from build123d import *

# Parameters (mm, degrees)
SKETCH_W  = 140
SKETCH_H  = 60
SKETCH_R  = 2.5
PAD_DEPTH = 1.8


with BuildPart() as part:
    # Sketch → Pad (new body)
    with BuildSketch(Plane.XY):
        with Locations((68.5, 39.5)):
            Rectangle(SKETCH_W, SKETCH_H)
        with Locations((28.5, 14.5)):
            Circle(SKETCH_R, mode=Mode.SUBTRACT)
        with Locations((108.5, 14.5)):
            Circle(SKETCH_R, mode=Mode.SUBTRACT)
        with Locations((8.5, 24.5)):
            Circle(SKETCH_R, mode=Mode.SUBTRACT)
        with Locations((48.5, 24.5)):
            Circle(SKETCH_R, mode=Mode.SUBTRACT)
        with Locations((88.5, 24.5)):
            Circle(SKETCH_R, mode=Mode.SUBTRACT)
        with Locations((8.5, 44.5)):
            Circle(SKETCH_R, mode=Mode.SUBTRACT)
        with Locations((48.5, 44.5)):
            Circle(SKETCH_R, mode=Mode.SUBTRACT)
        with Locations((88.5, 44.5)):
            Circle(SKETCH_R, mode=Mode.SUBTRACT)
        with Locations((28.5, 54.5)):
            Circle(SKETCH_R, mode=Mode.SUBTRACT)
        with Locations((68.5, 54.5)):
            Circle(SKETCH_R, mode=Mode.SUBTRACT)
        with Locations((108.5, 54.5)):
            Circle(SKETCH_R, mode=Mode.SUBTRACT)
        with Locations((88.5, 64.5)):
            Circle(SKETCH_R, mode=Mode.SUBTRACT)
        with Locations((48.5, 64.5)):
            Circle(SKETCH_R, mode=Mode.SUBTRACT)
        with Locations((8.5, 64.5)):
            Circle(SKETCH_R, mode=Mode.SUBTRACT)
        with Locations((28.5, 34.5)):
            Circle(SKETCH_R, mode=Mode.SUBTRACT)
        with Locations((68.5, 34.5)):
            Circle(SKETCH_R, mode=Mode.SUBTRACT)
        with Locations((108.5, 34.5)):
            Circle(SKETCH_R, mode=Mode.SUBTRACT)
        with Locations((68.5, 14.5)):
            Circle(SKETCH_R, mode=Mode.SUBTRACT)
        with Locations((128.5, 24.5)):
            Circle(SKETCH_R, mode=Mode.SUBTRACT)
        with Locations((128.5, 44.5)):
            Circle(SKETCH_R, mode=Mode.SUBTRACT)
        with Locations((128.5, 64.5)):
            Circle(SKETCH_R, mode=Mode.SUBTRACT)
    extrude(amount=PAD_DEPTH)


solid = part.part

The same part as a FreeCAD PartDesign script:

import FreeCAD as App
import Part
import Sketcher

V = App.Vector
Q = App.Units.Quantity


def add_polygon(sketch, points):
    """Adds a closed chain of lines whose ends are joined by coincident constraints."""
    first, n = sketch.GeometryCount, len(points)
    for a, b in zip(points, points[1:] + points[:1]):
        sketch.addGeometry(Part.LineSegment(App.Vector(*a, 0), App.Vector(*b, 0)), False)
    for i in range(n):
        sketch.addConstraint(Sketcher.Constraint("Coincident", first + i, 2, first + (i + 1) % n, 1))

doc = App.newDocument("Part")
body = doc.addObject("PartDesign::Body", "Body")

# Sketch on XY plane
sketch1 = doc.addObject("Sketcher::SketchObject", "Sketch")
body.addObject(sketch1)
sketch1.AttachmentSupport = (doc.XY_Plane, [""])
sketch1.MapMode = "FlatFace"
add_polygon(sketch1, [(-1.5, 69.5), (-1.5, 9.5), (138.5, 9.5), (138.5, 69.5)])  # lines 0-3
sketch1.addGeometry(Part.Circle(V(28.5, 14.5, 0), V(0, 0, 1), 2.5), False)  # 4
sketch1.addGeometry(Part.Circle(V(8.5, 24.5, 0), V(0, 0, 1), 2.5), False)  # 5
sketch1.addGeometry(Part.Circle(V(48.5, 24.5, 0), V(0, 0, 1), 2.5), False)  # 6
sketch1.addGeometry(Part.Circle(V(28.5, 34.5, 0), V(0, 0, 1), 2.5), False)  # 7
sketch1.addGeometry(Part.Circle(V(68.5, 14.5, 0), V(0, 0, 1), 2.5), False)  # 8
sketch1.addGeometry(Part.Circle(V(88.5, 24.5, 0), V(0, 0, 1), 2.5), False)  # 9
sketch1.addGeometry(Part.Circle(V(108.5, 14.5, 0), V(0, 0, 1), 2.5), False)  # 10
sketch1.addGeometry(Part.Circle(V(128.5, 24.5, 0), V(0, 0, 1), 2.5), False)  # 11
sketch1.addGeometry(Part.Circle(V(68.5, 34.5, 0), V(0, 0, 1), 2.5), False)  # 12
sketch1.addGeometry(Part.Circle(V(108.5, 34.5, 0), V(0, 0, 1), 2.5), False)  # 13
sketch1.addGeometry(Part.Circle(V(8.5, 44.5, 0), V(0, 0, 1), 2.5), False)  # 14
sketch1.addGeometry(Part.Circle(V(48.5, 44.5, 0), V(0, 0, 1), 2.5), False)  # 15
sketch1.addGeometry(Part.Circle(V(28.5, 54.5, 0), V(0, 0, 1), 2.5), False)  # 16
sketch1.addGeometry(Part.Circle(V(8.5, 64.5, 0), V(0, 0, 1), 2.5), False)  # 17
sketch1.addGeometry(Part.Circle(V(48.5, 64.5, 0), V(0, 0, 1), 2.5), False)  # 18
sketch1.addGeometry(Part.Circle(V(88.5, 44.5, 0), V(0, 0, 1), 2.5), False)  # 19
sketch1.addGeometry(Part.Circle(V(128.5, 44.5, 0), V(0, 0, 1), 2.5), False)  # 20
sketch1.addGeometry(Part.Circle(V(68.5, 54.5, 0), V(0, 0, 1), 2.5), False)  # 21
sketch1.addGeometry(Part.Circle(V(88.5, 64.5, 0), V(0, 0, 1), 2.5), False)  # 22
sketch1.addGeometry(Part.Circle(V(108.5, 54.5, 0), V(0, 0, 1), 2.5), False)  # 23
sketch1.addGeometry(Part.Circle(V(128.5, 64.5, 0), V(0, 0, 1), 2.5), False)  # 24
sketch1.addConstraint([
    Sketcher.Constraint("Vertical", 0),
    Sketcher.Constraint("Horizontal", 1),
    Sketcher.Constraint("Vertical", 2),
    Sketcher.Constraint("Horizontal", 3),
    Sketcher.Constraint("Equal", 4, 5),
    Sketcher.Constraint("Equal", 5, 6),
    Sketcher.Constraint("Equal", 6, 7),
    Sketcher.Constraint("Equal", 7, 8),
    Sketcher.Constraint("Equal", 8, 9),
    Sketcher.Constraint("Equal", 9, 10),
    Sketcher.Constraint("Equal", 10, 11),
    Sketcher.Constraint("Equal", 11, 12),
    Sketcher.Constraint("Equal", 12, 13),
    Sketcher.Constraint("Equal", 13, 14),
    Sketcher.Constraint("Equal", 14, 15),
    Sketcher.Constraint("Equal", 15, 16),
    Sketcher.Constraint("Equal", 16, 17),
    Sketcher.Constraint("Equal", 17, 18),
    Sketcher.Constraint("Equal", 18, 19),
    Sketcher.Constraint("Equal", 19, 20),
    Sketcher.Constraint("Equal", 20, 21),
    Sketcher.Constraint("Equal", 21, 22),
    Sketcher.Constraint("Equal", 22, 23),
    Sketcher.Constraint("Equal", 23, 24),
    Sketcher.Constraint("Horizontal", 5, 3, 6, 3),
    Sketcher.Constraint("Horizontal", 4, 3, 8, 3),
    Sketcher.Constraint("Horizontal", 6, 3, 9, 3),
    Sketcher.Constraint("Horizontal", 8, 3, 10, 3),
    Sketcher.Constraint("Horizontal", 9, 3, 11, 3),
    Sketcher.Constraint("Horizontal", 7, 3, 12, 3),
    Sketcher.Constraint("Horizontal", 12, 3, 13, 3),
    Sketcher.Constraint("Horizontal", 14, 3, 15, 3),
    Sketcher.Constraint("Horizontal", 17, 3, 18, 3),
    Sketcher.Constraint("Horizontal", 15, 3, 19, 3),
    Sketcher.Constraint("Horizontal", 19, 3, 20, 3),
    Sketcher.Constraint("Horizontal", 16, 3, 21, 3),
    Sketcher.Constraint("Horizontal", 18, 3, 22, 3),
    Sketcher.Constraint("Horizontal", 21, 3, 23, 3),
    Sketcher.Constraint("Horizontal", 22, 3, 24, 3),
    Sketcher.Constraint("Vertical", 4, 3, 7, 3),
    Sketcher.Constraint("Vertical", 8, 3, 12, 3),
    Sketcher.Constraint("Vertical", 10, 3, 13, 3),
    Sketcher.Constraint("Vertical", 5, 3, 14, 3),
    Sketcher.Constraint("Vertical", 6, 3, 15, 3),
    Sketcher.Constraint("Vertical", 7, 3, 16, 3),
    Sketcher.Constraint("Vertical", 14, 3, 17, 3),
    Sketcher.Constraint("Vertical", 15, 3, 18, 3),
    Sketcher.Constraint("Vertical", 9, 3, 19, 3),
    Sketcher.Constraint("Vertical", 11, 3, 20, 3),
    Sketcher.Constraint("Vertical", 12, 3, 21, 3),
    Sketcher.Constraint("Vertical", 19, 3, 22, 3),
    Sketcher.Constraint("Vertical", 13, 3, 23, 3),
    Sketcher.Constraint("Vertical", 20, 3, 24, 3),
    Sketcher.Constraint("Diameter", 4, Q("5 mm")),
    Sketcher.Constraint("DistanceX", 1, 1, 1, 2, Q("140 mm")),
    Sketcher.Constraint("DistanceY", 0, 2, 0, 1, Q("60 mm")),
    Sketcher.Constraint("DistanceX", 5, 3, 4, 3, Q("20 mm")),
    Sketcher.Constraint("DistanceY", 4, 3, 5, 3, Q("10 mm")),
    Sketcher.Constraint("DistanceX", 4, 3, 6, 3, Q("20 mm")),
    Sketcher.Constraint("DistanceY", 4, 3, 7, 3, Q("20 mm")),
    Sketcher.Constraint("DistanceX", 6, 3, 8, 3, Q("20 mm")),
    Sketcher.Constraint("DistanceX", 8, 3, 9, 3, Q("20 mm")),
    Sketcher.Constraint("DistanceX", 9, 3, 10, 3, Q("20 mm")),
    Sketcher.Constraint("DistanceX", 10, 3, 11, 3, Q("20 mm")),
    Sketcher.Constraint("DistanceY", 5, 3, 14, 3, Q("20 mm")),
    Sketcher.Constraint("DistanceY", 7, 3, 16, 3, Q("20 mm")),
    Sketcher.Constraint("DistanceY", 14, 3, 17, 3, Q("20 mm")),
    Sketcher.Constraint("DistanceX", 0, 2, 5, 3, Q("10 mm")),
    Sketcher.Constraint("DistanceY", 0, 2, 5, 3, Q("15 mm")),
    Sketcher.Constraint("DistanceX", -1, 1, 4, 3, Q("28.5 mm")),
    Sketcher.Constraint("DistanceY", -1, 1, 4, 3, Q("14.5 mm")),
])
pad1 = doc.addObject("PartDesign::Pad", "Pad")
body.addObject(pad1)
pad1.Profile = sketch1
pad1.Length = 1.8

doc.recompute()
